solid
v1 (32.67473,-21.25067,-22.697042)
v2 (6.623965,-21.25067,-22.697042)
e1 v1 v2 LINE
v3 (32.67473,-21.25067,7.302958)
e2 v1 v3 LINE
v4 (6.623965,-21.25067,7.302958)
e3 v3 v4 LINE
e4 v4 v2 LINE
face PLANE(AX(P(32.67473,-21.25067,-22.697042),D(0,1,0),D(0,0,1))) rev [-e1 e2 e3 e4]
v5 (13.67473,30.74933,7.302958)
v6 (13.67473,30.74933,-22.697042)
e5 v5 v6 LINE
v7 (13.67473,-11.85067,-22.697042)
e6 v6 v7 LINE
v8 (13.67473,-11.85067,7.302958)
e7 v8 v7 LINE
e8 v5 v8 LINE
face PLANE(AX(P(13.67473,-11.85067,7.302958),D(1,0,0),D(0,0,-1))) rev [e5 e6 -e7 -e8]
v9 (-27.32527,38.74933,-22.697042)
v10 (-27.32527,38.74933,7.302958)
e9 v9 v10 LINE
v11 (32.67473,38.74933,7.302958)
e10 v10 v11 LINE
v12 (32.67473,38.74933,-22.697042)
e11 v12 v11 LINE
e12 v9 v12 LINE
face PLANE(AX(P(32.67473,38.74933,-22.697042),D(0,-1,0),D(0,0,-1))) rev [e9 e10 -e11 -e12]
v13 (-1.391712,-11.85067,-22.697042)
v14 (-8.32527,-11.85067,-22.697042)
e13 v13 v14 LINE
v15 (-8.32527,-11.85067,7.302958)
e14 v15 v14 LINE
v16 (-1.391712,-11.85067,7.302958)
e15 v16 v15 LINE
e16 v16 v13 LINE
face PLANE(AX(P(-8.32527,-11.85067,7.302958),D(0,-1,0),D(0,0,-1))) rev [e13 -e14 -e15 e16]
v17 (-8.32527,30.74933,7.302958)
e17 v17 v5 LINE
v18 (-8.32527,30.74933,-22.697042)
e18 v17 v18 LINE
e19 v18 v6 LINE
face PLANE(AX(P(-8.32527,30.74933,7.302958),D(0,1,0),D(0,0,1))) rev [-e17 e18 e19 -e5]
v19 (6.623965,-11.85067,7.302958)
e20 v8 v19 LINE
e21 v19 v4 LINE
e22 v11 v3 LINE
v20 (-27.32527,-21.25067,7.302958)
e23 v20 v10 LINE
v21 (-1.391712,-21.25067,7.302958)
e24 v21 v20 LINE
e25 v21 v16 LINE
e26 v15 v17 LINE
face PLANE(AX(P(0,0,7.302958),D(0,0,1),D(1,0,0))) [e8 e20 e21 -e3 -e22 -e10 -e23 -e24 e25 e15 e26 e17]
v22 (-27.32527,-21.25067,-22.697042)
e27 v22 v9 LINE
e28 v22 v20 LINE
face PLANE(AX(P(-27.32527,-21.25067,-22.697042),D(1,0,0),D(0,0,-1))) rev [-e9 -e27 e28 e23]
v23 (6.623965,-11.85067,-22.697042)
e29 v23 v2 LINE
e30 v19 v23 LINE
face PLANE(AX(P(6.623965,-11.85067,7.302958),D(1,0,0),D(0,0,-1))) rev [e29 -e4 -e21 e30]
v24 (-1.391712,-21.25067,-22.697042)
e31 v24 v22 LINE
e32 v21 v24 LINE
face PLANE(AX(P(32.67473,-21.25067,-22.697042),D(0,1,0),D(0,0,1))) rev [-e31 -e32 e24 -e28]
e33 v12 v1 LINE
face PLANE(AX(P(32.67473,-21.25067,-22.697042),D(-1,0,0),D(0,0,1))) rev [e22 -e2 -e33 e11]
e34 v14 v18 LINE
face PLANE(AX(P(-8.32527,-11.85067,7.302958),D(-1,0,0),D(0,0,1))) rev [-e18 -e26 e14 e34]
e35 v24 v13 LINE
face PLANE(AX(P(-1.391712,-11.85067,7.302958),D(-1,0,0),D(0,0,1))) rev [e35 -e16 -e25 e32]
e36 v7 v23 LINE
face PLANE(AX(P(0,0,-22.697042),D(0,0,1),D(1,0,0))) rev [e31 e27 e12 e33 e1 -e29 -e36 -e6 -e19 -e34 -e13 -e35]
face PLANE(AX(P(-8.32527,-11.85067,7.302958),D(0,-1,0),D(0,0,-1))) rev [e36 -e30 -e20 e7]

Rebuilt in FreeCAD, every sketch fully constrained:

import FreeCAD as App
import Part
import Sketcher
from FreeCAD import Vector
Q = App.Units.Quantity

doc = App.newDocument("Part")
params = doc.addObject("Spreadsheet::Sheet", "Params")
for row, (alias, value) in enumerate([
    ("sketch1_width", "60 mm"),
    ("pad1_length", "30 mm"),
    ("sketch2_width", "22 mm"),
    ("sketch2_height", "42.6 mm"),
    ("sketch3_height", "9.4 mm"),
], start=1):
    params.set(f"A{row}", alias)
    params.set(f"B{row}", "=" + value)
    params.setAlias(f"B{row}", alias)

body = doc.addObject("PartDesign::Body", "Body")

# Sketch on XY plane
sketch1 = body.newObject("Sketcher::SketchObject", "Sketch")
sketch1.AttachmentSupport = (doc.getObject("XY_Plane"), [""])
sketch1.MapMode = "FlatFace"
sketch1.AttachmentOffset = App.Placement(Vector(0, 0, 7.302958), App.Rotation())
sketch1.addGeometry([
    Part.LineSegment(Vector(33, 39, 0), Vector(33, -21, 0)),
    Part.LineSegment(Vector(33, -21, 0), Vector(-27, -21, 0)),
    Part.LineSegment(Vector(-27, -21, 0), Vector(-27, 39, 0)),
    Part.LineSegment(Vector(-27, 39, 0), Vector(33, 39, 0)),
], False)
sketch1.addConstraint([
    Sketcher.Constraint("Coincident", 0, 2, 1, 1),
    Sketcher.Constraint("Coincident", 1, 2, 2, 1),
    Sketcher.Constraint("Coincident", 2, 2, 3, 1),
    Sketcher.Constraint("Coincident", 3, 2, 0, 1),
    Sketcher.Constraint("Vertical", 0),
    Sketcher.Constraint("Horizontal", 1),
    Sketcher.Constraint("Vertical", 2),
    Sketcher.Constraint("Horizontal", 3),
    Sketcher.Constraint("Equal", 3, 0),
    Sketcher.Constraint("DistanceX", 1, 2, 1, 1, Q("60 mm")),
    Sketcher.Constraint("DistanceX", -1, 1, 0, 2, Q("32.67473 mm")),
    Sketcher.Constraint("DistanceY", 0, 2, -1, 1, Q("21.25067 mm")),
])
sketch1.setExpression("Constraints[9]", "Params.sketch1_width")
pad1 = body.newObject("PartDesign::Pad", "Pad")
pad1.Profile = sketch1
pad1.setExpression("Length", "Params.pad1_length")
pad1.Reversed = True

# Sketch on XY plane
sketch2 = body.newObject("Sketcher::SketchObject", "Sketch001")
sketch2.AttachmentSupport = (doc.getObject("XY_Plane"), [""])
sketch2.MapMode = "FlatFace"
sketch2.AttachmentOffset = App.Placement(Vector(0, 0, -22.697042), App.Rotation())
sketch2.addGeometry([
    Part.LineSegment(Vector(14, 31, 0), Vector(14, -12, 0)),
    Part.LineSegment(Vector(14, -12, 0), Vector(-8, -12, 0)),
    Part.LineSegment(Vector(-8, -12, 0), Vector(-8, 31, 0)),
    Part.LineSegment(Vector(-8, 31, 0), Vector(14, 31, 0)),
], False)
sketch2.addConstraint([
    Sketcher.Constraint("Coincident", 0, 2, 1, 1),
    Sketcher.Constraint("Coincident", 1, 2, 2, 1),
    Sketcher.Constraint("Coincident", 2, 2, 3, 1),
    Sketcher.Constraint("Coincident", 3, 2, 0, 1),
    Sketcher.Constraint("Vertical", 0),
    Sketcher.Constraint("Horizontal", 1),
    Sketcher.Constraint("Vertical", 2),
    Sketcher.Constraint("Horizontal", 3),
    Sketcher.Constraint("DistanceX", 1, 2, 1, 1, Q("22 mm")),
    Sketcher.Constraint("DistanceY", 0, 2, 0, 1, Q("42.6 mm")),
    Sketcher.Constraint("DistanceX", -1, 1, 0, 2, Q("13.67473 mm")),
    Sketcher.Constraint("DistanceY", 0, 2, -1, 1, Q("11.85067 mm")),
])
sketch2.setExpression("Constraints[8]", "Params.sketch2_width")
sketch2.setExpression("Constraints[9]", "Params.sketch2_height")
pocket1 = body.newObject("PartDesign::Pocket", "Pocket")
pocket1.Profile = sketch2
pocket1.Type = "ThroughAll"
pocket1.Reversed = True

# Sketch on XY plane
sketch3 = body.newObject("Sketcher::SketchObject", "Sketch002")
sketch3.AttachmentSupport = (doc.getObject("XY_Plane"), [""])
sketch3.MapMode = "FlatFace"
sketch3.AttachmentOffset = App.Placement(Vector(0, 0, -22.697042), App.Rotation())
sketch3.addGeometry([
    Part.LineSegment(Vector(7, -12, 0), Vector(7, -21, 0)),
    Part.LineSegment(Vector(7, -21, 0), Vector(-1, -21, 0)),
    Part.LineSegment(Vector(-1, -21, 0), Vector(-1, -12, 0)),
    Part.LineSegment(Vector(-1, -12, 0), Vector(7, -12, 0)),
], False)
sketch3.addConstraint([
    Sketcher.Constraint("Coincident", 0, 2, 1, 1),
    Sketcher.Constraint("Coincident", 1, 2, 2, 1),
    Sketcher.Constraint("Coincident", 2, 2, 3, 1),
    Sketcher.Constraint("Coincident", 3, 2, 0, 1),
    Sketcher.Constraint("Vertical", 0),
    Sketcher.Constraint("Horizontal", 1),
    Sketcher.Constraint("Vertical", 2),
    Sketcher.Constraint("Horizontal", 3),
    Sketcher.Constraint("DistanceY", 0, 2, 0, 1, Q("9.4 mm")),
    Sketcher.Constraint("DistanceX", 1, 2, 1, 1, Q("8.015676 mm")),
    Sketcher.Constraint("DistanceY", 0, 2, -1, 1, Q("21.25067 mm")),
    Sketcher.Constraint("DistanceX", 1, 2, -1, 1, Q("1.391712 mm")),
])
sketch3.setExpression("Constraints[8]", "Params.sketch3_height")
pocket2 = body.newObject("PartDesign::Pocket", "Pocket001")
pocket2.Profile = sketch3
pocket2.Type = "ThroughAll"
pocket2.Reversed = True

doc.recompute()
